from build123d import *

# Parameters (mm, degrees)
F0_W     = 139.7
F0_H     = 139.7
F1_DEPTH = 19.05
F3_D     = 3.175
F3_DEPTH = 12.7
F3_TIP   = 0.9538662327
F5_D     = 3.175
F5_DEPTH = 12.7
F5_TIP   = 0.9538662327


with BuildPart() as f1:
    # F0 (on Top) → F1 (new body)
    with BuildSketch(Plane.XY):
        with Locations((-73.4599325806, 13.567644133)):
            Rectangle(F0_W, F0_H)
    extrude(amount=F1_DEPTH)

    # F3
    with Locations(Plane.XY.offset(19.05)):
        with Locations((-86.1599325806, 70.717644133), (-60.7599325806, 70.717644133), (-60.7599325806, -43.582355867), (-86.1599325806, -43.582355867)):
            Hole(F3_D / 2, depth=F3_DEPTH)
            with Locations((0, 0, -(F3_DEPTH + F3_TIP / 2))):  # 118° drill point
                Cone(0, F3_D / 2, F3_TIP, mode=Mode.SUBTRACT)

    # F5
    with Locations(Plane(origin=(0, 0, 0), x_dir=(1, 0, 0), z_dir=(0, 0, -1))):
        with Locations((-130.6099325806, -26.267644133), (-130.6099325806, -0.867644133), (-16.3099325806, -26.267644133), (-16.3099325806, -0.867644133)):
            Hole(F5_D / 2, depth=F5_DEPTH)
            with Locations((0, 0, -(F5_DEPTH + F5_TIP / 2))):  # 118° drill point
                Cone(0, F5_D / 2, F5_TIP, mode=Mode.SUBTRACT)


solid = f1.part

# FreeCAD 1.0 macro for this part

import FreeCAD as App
import Part
import Sketcher
from FreeCAD import Vector
Q = App.Units.Quantity

doc = App.newDocument("Part")
params = doc.addObject("Spreadsheet::Sheet", "Params")
for row, (alias, value) in enumerate([
    ("sketch1_width", "5.5 in"),
    ("pad1_length", "0.75 in"),
    ("sketch2_diameter", "0.125 in"),
    ("hole_diameter", "0.125 in"),
    ("hole_depth", "0.5 in"),
    ("sketch3_diameter", "0.125 in"),
    ("hole2_diameter", "0.125 in"),
    ("hole2_depth", "0.5 in"),
], start=1):
    params.set(f"A{row}", alias)
    params.set(f"B{row}", "=" + value)
    params.setAlias(f"B{row}", alias)

body = doc.addObject("PartDesign::Body", "Body")

# Sketch on XY plane
sketch1 = doc.addObject("Sketcher::SketchObject", "Sketch")
body.addObject(sketch1)
sketch1.AttachmentSupport = (doc.XY_Plane, [""])
sketch1.MapMode = "FlatFace"
sketch1.addGeometry(Part.LineSegment(Vector(-143, 83, 0), Vector(-143, -56, 0)), False)
sketch1.addGeometry(Part.LineSegment(Vector(-143, -56, 0), Vector(-4, -56, 0)), False)
sketch1.addGeometry(Part.LineSegment(Vector(-4, -56, 0), Vector(-4, 83, 0)), False)
sketch1.addGeometry(Part.LineSegment(Vector(-4, 83, 0), Vector(-143, 83, 0)), False)
sketch1.addConstraint(Sketcher.Constraint("Coincident", 0, 2, 1, 1))
sketch1.addConstraint(Sketcher.Constraint("Coincident", 1, 2, 2, 1))
sketch1.addConstraint(Sketcher.Constraint("Coincident", 2, 2, 3, 1))
sketch1.addConstraint(Sketcher.Constraint("Coincident", 3, 2, 0, 1))
sketch1.addConstraint(Sketcher.Constraint("Vertical", 0))
sketch1.addConstraint(Sketcher.Constraint("Horizontal", 1))
sketch1.addConstraint(Sketcher.Constraint("Vertical", 2))
sketch1.addConstraint(Sketcher.Constraint("Horizontal", 3))
sketch1.addConstraint(Sketcher.Constraint("Equal", 3, 0))
sketch1.addConstraint(Sketcher.Constraint("DistanceX", 1, 1, 1, 2, Q("5.5 in")))
sketch1.addConstraint(Sketcher.Constraint("DistanceX", 0, 2, -1, 1, Q("143.309933 mm")))
sketch1.addConstraint(Sketcher.Constraint("DistanceY", 0, 2, -1, 1, Q("56.282356 mm")))
sketch1.setExpression("Constraints[9]", "Params.sketch1_width")
pad1 = doc.addObject("PartDesign::Pad", "Pad")
body.addObject(pad1)
pad1.Profile = sketch1
pad1.setExpression("Length", "Params.pad1_length")

# Sketch on XY plane
sketch2 = doc.addObject("Sketcher::SketchObject", "Sketch001")
body.addObject(sketch2)
sketch2.AttachmentSupport = (doc.XY_Plane, [""])
sketch2.MapMode = "FlatFace"
sketch2.AttachmentOffset = App.Placement(Vector(0, 0, 0.75 * 25.4), App.Rotation())
sketch2.addGeometry(Part.Circle(Vector(-86.2, 70.7, 0), Vector(0, 0, 1), 1.6), False)
sketch2.addGeometry(Part.Circle(Vector(-60.8, 70.7, 0), Vector(0, 0, 1), 1.6), False)
sketch2.addGeometry(Part.Circle(Vector(-60.8, -43.6, 0), Vector(0, 0, 1), 1.6), False)
sketch2.addGeometry(Part.Circle(Vector(-86.2, -43.6, 0), Vector(0, 0, 1), 1.6), False)
sketch2.addConstraint(Sketcher.Constraint("Equal", 0, 1))
sketch2.addConstraint(Sketcher.Constraint("Equal", 1, 2))
sketch2.addConstraint(Sketcher.Constraint("Equal", 2, 3))
sketch2.addConstraint(Sketcher.Constraint("Horizontal", 0, 3, 1, 3))
sketch2.addConstraint(Sketcher.Constraint("Horizontal", 2, 3, 3, 3))
sketch2.addConstraint(Sketcher.Constraint("Vertical", 1, 3, 2, 3))
sketch2.addConstraint(Sketcher.Constraint("Vertical", 0, 3, 3, 3))
sketch2.addConstraint(Sketcher.Constraint("Diameter", 0, Q("0.125 in")))
sketch2.addConstraint(Sketcher.Constraint("DistanceX", 0, 3, 1, 3, Q("1 in")))
sketch2.addConstraint(Sketcher.Constraint("DistanceY", 2, 3, 1, 3, Q("4.5 in")))
sketch2.addConstraint(Sketcher.Constraint("DistanceX", 0, 3, -1, 1, Q("86.159933 mm")))
sketch2.addConstraint(Sketcher.Constraint("DistanceY", -1, 1, 0, 3, Q("70.717644 mm")))
sketch2.setExpression("Constraints[7]", "Params.sketch2_diameter")
doc.recompute()
hole = doc.addObject("PartDesign::Hole", "Hole")
body.addObject(hole)
hole.Profile = sketch2
hole.ThreadType = "None"
hole.setExpression("Diameter", "Params.hole_diameter")
hole.DepthType = "Dimension"
hole.setExpression("Depth", "Params.hole_depth")
hole.DrillPoint = "Angled"
hole.DrillPointAngle = 118

# Sketch on XY plane
sketch3 = doc.addObject("Sketcher::SketchObject", "Sketch002")
body.addObject(sketch3)
sketch3.AttachmentSupport = (doc.XY_Plane, [""])
sketch3.MapMode = "FlatFace"
sketch3.addGeometry(Part.Circle(Vector(-130.6, 26.3, 0), Vector(0, 0, 1), 1.6), False)
sketch3.addGeometry(Part.Circle(Vector(-130.6, 0.9, 0), Vector(0, 0, 1), 1.6), False)
sketch3.addGeometry(Part.Circle(Vector(-16.3, 26.3, 0), Vector(0, 0, 1), 1.6), False)
sketch3.addGeometry(Part.Circle(Vector(-16.3, 0.9, 0), Vector(0, 0, 1), 1.6), False)
sketch3.addConstraint(Sketcher.Constraint("Equal", 0, 1))
sketch3.addConstraint(Sketcher.Constraint("Equal", 1, 2))
sketch3.addConstraint(Sketcher.Constraint("Equal", 2, 3))
sketch3.addConstraint(Sketcher.Constraint("Horizontal", 0, 3, 2, 3))
sketch3.addConstraint(Sketcher.Constraint("Horizontal", 1, 3, 3, 3))
sketch3.addConstraint(Sketcher.Constraint("Vertical", 0, 3, 1, 3))
sketch3.addConstraint(Sketcher.Constraint("Vertical", 2, 3, 3, 3))
sketch3.addConstraint(Sketcher.Constraint("Diameter", 0, Q("0.125 in")))
sketch3.addConstraint(Sketcher.Constraint("DistanceY", 1, 3, 0, 3, Q("1 in")))
sketch3.addConstraint(Sketcher.Constraint("DistanceX", 0, 3, 2, 3, Q("4.5 in")))
sketch3.addConstraint(Sketcher.Constraint("DistanceX", 0, 3, -1, 1, Q("130.609933 mm")))
sketch3.addConstraint(Sketcher.Constraint("DistanceY", -1, 1, 0, 3, Q("26.267644 mm")))
sketch3.setExpression("Constraints[7]", "Params.sketch3_diameter")
doc.recompute()
hole2 = doc.addObject("PartDesign::Hole", "Hole001")
body.addObject(hole2)
hole2.Profile = sketch3
hole2.ThreadType = "None"
hole2.setExpression("Diameter", "Params.hole2_diameter")
hole2.DepthType = "Dimension"
hole2.setExpression("Depth", "Params.hole2_depth")
hole2.DrillPoint = "Angled"
hole2.DrillPointAngle = 118
hole2.Reversed = True

doc.recompute()
